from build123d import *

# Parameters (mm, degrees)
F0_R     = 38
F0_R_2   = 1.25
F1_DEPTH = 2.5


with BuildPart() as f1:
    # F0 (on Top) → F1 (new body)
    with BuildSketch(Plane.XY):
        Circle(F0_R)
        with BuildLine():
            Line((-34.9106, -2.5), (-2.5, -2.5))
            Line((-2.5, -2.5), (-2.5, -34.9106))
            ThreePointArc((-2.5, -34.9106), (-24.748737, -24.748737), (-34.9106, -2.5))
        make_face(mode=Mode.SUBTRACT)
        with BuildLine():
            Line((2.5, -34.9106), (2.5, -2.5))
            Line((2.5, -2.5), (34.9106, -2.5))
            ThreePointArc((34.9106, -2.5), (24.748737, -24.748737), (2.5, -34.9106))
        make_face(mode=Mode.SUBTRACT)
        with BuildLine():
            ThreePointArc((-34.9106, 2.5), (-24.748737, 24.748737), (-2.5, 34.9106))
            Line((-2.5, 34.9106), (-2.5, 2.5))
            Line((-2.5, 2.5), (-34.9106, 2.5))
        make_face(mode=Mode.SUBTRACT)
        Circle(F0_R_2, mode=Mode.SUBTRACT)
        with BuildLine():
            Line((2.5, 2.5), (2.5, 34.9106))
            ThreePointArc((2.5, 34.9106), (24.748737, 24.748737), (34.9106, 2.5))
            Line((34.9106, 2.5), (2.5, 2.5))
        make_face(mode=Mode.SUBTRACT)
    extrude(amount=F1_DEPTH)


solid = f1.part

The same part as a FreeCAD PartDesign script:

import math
import FreeCAD as App
import Part
import Sketcher

V = App.Vector
Q = App.Units.Quantity

doc = App.newDocument("Part")
params = doc.addObject("Spreadsheet::Sheet", "Params")
for row, (alias, value) in enumerate([
    ("sketch1_diameter", "76 mm"),
    ("sketch1_radius", "35.000001 mm"),
    ("sketch1_diameter2", "2.5 mm"),
    ("pad1_length", "2.5 mm"),
], start=1):
    params.set(f"A{row}", alias)
    params.set(f"B{row}", "=" + value)
    params.setAlias(f"B{row}", alias)

body = doc.addObject("PartDesign::Body", "Body")

# Sketch on XY plane
sketch1 = doc.addObject("Sketcher::SketchObject", "Sketch")
body.addObject(sketch1)
sketch1.AttachmentSupport = (doc.XY_Plane, [""])
sketch1.MapMode = "FlatFace"
sketch1.addGeometry(Part.Circle(V(0, 0, 0), V(0, 0, 1), 38), False)
sketch1.addGeometry(Part.ArcOfCircle(Part.Circle(V(0, 0, 0), V(0, 0, 1), 35), math.radians(-176), math.radians(-94)), False)
sketch1.addGeometry(Part.LineSegment(V(-34.9, -2.5, 0), V(-2.5, -2.5, 0)), False)
sketch1.addGeometry(Part.LineSegment(V(-2.5, -2.5, 0), V(-2.5, -34.9, 0)), False)
sketch1.addGeometry(Part.ArcOfCircle(Part.Circle(V(0, 0, 0), V(0, 0, 1), 35), math.radians(-86), math.radians(-4)), False)
sketch1.addGeometry(Part.LineSegment(V(2.5, -34.9, 0), V(2.5, -2.5, 0)), False)
sketch1.addGeometry(Part.LineSegment(V(2.5, -2.5, 0), V(34.9, -2.5, 0)), False)
sketch1.addGeometry(Part.LineSegment(V(-2.5, 2.5, 0), V(-34.9, 2.5, 0)), False)
sketch1.addGeometry(Part.ArcOfCircle(Part.Circle(V(0, 0, 0), V(0, 0, 1), 35), math.radians(94), math.radians(176)), False)
sketch1.addGeometry(Part.LineSegment(V(-2.5, 34.9, 0), V(-2.5, 2.5, 0)), False)
sketch1.addGeometry(Part.Circle(V(0, 0, 0), V(0, 0, 1), 1.2), False)
sketch1.addGeometry(Part.LineSegment(V(34.9, 2.5, 0), V(2.5, 2.5, 0)), False)
sketch1.addGeometry(Part.LineSegment(V(2.5, 2.5, 0), V(2.5, 34.9, 0)), False)
sketch1.addGeometry(Part.ArcOfCircle(Part.Circle(V(0, 0, 0), V(0, 0, 1), 35), math.radians(4), math.radians(86)), False)
sketch1.addConstraint(Sketcher.Constraint("Coincident", 1, 1, 2, 1))
sketch1.addConstraint(Sketcher.Constraint("Coincident", 2, 2, 3, 1))
sketch1.addConstraint(Sketcher.Constraint("Coincident", 3, 2, 1, 2))
sketch1.addConstraint(Sketcher.Constraint("Coincident", 4, 1, 5, 1))
sketch1.addConstraint(Sketcher.Constraint("Coincident", 5, 2, 6, 1))
sketch1.addConstraint(Sketcher.Constraint("Coincident", 6, 2, 4, 2))
sketch1.addConstraint(Sketcher.Constraint("Coincident", 7, 2, 8, 2))
sketch1.addConstraint(Sketcher.Constraint("Coincident", 8, 1, 9, 1))
sketch1.addConstraint(Sketcher.Constraint("Coincident", 9, 2, 7, 1))
sketch1.addConstraint(Sketcher.Constraint("Coincident", 11, 2, 12, 1))
sketch1.addConstraint(Sketcher.Constraint("Coincident", 12, 2, 13, 2))
sketch1.addConstraint(Sketcher.Constraint("Coincident", 13, 1, 11, 1))
sketch1.addConstraint(Sketcher.Constraint("Horizontal", 2))
sketch1.addConstraint(Sketcher.Constraint("Vertical", 3))
sketch1.addConstraint(Sketcher.Constraint("Vertical", 5))
sketch1.addConstraint(Sketcher.Constraint("Horizontal", 6))
sketch1.addConstraint(Sketcher.Constraint("Horizontal", 7))
sketch1.addConstraint(Sketcher.Constraint("Vertical", 9))
sketch1.addConstraint(Sketcher.Constraint("Horizontal", 11))
sketch1.addConstraint(Sketcher.Constraint("Vertical", 12))
sketch1.addConstraint(Sketcher.Constraint("Coincident", 0, 3, -1, 1))
sketch1.addConstraint(Sketcher.Constraint("Coincident", 1, 3, -1, 1))
sketch1.addConstraint(Sketcher.Constraint("Coincident", 4, 3, -1, 1))
sketch1.addConstraint(Sketcher.Constraint("Coincident", 8, 3, -1, 1))
sketch1.addConstraint(Sketcher.Constraint("Coincident", 10, 3, -1, 1))
sketch1.addConstraint(Sketcher.Constraint("Coincident", 13, 3, -1, 1))
sketch1.addConstraint(Sketcher.Constraint("Equal", 1, 4))
sketch1.addConstraint(Sketcher.Constraint("Equal", 4, 8))
sketch1.addConstraint(Sketcher.Constraint("Equal", 8, 13))
sketch1.addConstraint(Sketcher.Constraint("Symmetric", 5, 2, 9, 2, -1, 1))
sketch1.addConstraint(Sketcher.Constraint("Symmetric", 2, 2, 11, 2, -1, 1))
sketch1.addConstraint(Sketcher.Constraint("Symmetric", 2, 2, 5, 2, -2))
sketch1.addConstraint(Sketcher.Constraint("Equal", 11, 3))
sketch1.addConstraint(Sketcher.Constraint("Diameter", 0, Q("76 mm")))
sketch1.addConstraint(Sketcher.Constraint("Radius", 1, Q("35.000001 mm")))
sketch1.addConstraint(Sketcher.Constraint("Diameter", 10, Q("2.5 mm")))
sketch1.addConstraint(Sketcher.Constraint("DistanceX", 3, 2, 4, 1, Q("5 mm")))
sketch1.setExpression("Constraints[33]", "Params.sketch1_diameter")
sketch1.setExpression("Constraints[34]", "Params.sketch1_radius")
sketch1.setExpression("Constraints[35]", "Params.sketch1_diameter2")
pad1 = doc.addObject("PartDesign::Pad", "Pad")
body.addObject(pad1)
pad1.Profile = sketch1
pad1.setExpression("Length", "Params.pad1_length")

doc.recompute()
